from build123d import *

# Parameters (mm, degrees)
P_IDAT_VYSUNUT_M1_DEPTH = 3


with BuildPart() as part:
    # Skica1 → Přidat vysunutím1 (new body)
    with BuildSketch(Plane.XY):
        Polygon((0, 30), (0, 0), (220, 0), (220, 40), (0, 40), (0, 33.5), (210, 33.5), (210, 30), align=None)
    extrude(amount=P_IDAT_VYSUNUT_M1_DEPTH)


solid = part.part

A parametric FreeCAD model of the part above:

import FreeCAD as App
import Part
import Sketcher
from FreeCAD import Vector

doc = App.newDocument("Part")
body = doc.addObject("PartDesign::Body", "Body")

# Sketch on XY plane
sketch1 = doc.addObject("Sketcher::SketchObject", "Sketch")
body.addObject(sketch1)
sketch1.AttachmentSupport = (doc.XY_Plane, [""])
sketch1.MapMode = "FlatFace"
sketch1.addGeometry([
    Part.LineSegment(Vector(0, 30, 0), Vector(0, 0, 0)),  # 0
    Part.LineSegment(Vector(0, 0, 0), Vector(220, 0, 0)),  # 1
    Part.LineSegment(Vector(220, 0, 0), Vector(220, 40, 0)),  # 2
    Part.LineSegment(Vector(220, 40, 0), Vector(0, 40, 0)),  # 3
    Part.LineSegment(Vector(0, 40, 0), Vector(0, 33.5, 0)),  # 4
    Part.LineSegment(Vector(0, 33.5, 0), Vector(210, 33.5, 0)),  # 5
    Part.LineSegment(Vector(210, 33.5, 0), Vector(210, 30, 0)),  # 6
    Part.LineSegment(Vector(210, 30, 0), Vector(0, 30, 0)),  # 7
], False)
sketch1.addConstraint([
    Sketcher.Constraint("Coincident", 0, 2, 1, 1),
    Sketcher.Constraint("Coincident", 1, 2, 2, 1),
    Sketcher.Constraint("Coincident", 2, 2, 3, 1),
    Sketcher.Constraint("Coincident", 3, 2, 4, 1),
    Sketcher.Constraint("Coincident", 4, 2, 5, 1),
    Sketcher.Constraint("Coincident", 5, 2, 6, 1),
    Sketcher.Constraint("Coincident", 6, 2, 7, 1),
    Sketcher.Constraint("Coincident", 7, 2, 0, 1),
    Sketcher.Constraint("Vertical", 0),
    Sketcher.Constraint("Horizontal", 1),
    Sketcher.Constraint("Vertical", 2),
    Sketcher.Constraint("Horizontal", 3),
    Sketcher.Constraint("Vertical", 4),
    Sketcher.Constraint("Horizontal", 5),
    Sketcher.Constraint("Vertical", 6),
    Sketcher.Constraint("Horizontal", 7),
    Sketcher.Constraint("Coincident", 0, 2, -1, 1),
    Sketcher.Constraint("PointOnObject", 3, 2, -2),
    Sketcher.Constraint("DistanceX", 1, 1, 1, 2, 220.0),
    Sketcher.Constraint("DistanceX", 5, 1, 5, 2, 210.0),
    Sketcher.Constraint("DistanceY", 0, 2, 0, 1, 30.0),
    Sketcher.Constraint("DistanceY", 2, 1, 2, 2, 40.0),
    Sketcher.Constraint("DistanceY", 4, 2, 4, 1, 6.5),
])
pad1 = doc.addObject("PartDesign::Pad", "Pad")
body.addObject(pad1)
pad1.Profile = sketch1
pad1.Length = 3

doc.recompute()
